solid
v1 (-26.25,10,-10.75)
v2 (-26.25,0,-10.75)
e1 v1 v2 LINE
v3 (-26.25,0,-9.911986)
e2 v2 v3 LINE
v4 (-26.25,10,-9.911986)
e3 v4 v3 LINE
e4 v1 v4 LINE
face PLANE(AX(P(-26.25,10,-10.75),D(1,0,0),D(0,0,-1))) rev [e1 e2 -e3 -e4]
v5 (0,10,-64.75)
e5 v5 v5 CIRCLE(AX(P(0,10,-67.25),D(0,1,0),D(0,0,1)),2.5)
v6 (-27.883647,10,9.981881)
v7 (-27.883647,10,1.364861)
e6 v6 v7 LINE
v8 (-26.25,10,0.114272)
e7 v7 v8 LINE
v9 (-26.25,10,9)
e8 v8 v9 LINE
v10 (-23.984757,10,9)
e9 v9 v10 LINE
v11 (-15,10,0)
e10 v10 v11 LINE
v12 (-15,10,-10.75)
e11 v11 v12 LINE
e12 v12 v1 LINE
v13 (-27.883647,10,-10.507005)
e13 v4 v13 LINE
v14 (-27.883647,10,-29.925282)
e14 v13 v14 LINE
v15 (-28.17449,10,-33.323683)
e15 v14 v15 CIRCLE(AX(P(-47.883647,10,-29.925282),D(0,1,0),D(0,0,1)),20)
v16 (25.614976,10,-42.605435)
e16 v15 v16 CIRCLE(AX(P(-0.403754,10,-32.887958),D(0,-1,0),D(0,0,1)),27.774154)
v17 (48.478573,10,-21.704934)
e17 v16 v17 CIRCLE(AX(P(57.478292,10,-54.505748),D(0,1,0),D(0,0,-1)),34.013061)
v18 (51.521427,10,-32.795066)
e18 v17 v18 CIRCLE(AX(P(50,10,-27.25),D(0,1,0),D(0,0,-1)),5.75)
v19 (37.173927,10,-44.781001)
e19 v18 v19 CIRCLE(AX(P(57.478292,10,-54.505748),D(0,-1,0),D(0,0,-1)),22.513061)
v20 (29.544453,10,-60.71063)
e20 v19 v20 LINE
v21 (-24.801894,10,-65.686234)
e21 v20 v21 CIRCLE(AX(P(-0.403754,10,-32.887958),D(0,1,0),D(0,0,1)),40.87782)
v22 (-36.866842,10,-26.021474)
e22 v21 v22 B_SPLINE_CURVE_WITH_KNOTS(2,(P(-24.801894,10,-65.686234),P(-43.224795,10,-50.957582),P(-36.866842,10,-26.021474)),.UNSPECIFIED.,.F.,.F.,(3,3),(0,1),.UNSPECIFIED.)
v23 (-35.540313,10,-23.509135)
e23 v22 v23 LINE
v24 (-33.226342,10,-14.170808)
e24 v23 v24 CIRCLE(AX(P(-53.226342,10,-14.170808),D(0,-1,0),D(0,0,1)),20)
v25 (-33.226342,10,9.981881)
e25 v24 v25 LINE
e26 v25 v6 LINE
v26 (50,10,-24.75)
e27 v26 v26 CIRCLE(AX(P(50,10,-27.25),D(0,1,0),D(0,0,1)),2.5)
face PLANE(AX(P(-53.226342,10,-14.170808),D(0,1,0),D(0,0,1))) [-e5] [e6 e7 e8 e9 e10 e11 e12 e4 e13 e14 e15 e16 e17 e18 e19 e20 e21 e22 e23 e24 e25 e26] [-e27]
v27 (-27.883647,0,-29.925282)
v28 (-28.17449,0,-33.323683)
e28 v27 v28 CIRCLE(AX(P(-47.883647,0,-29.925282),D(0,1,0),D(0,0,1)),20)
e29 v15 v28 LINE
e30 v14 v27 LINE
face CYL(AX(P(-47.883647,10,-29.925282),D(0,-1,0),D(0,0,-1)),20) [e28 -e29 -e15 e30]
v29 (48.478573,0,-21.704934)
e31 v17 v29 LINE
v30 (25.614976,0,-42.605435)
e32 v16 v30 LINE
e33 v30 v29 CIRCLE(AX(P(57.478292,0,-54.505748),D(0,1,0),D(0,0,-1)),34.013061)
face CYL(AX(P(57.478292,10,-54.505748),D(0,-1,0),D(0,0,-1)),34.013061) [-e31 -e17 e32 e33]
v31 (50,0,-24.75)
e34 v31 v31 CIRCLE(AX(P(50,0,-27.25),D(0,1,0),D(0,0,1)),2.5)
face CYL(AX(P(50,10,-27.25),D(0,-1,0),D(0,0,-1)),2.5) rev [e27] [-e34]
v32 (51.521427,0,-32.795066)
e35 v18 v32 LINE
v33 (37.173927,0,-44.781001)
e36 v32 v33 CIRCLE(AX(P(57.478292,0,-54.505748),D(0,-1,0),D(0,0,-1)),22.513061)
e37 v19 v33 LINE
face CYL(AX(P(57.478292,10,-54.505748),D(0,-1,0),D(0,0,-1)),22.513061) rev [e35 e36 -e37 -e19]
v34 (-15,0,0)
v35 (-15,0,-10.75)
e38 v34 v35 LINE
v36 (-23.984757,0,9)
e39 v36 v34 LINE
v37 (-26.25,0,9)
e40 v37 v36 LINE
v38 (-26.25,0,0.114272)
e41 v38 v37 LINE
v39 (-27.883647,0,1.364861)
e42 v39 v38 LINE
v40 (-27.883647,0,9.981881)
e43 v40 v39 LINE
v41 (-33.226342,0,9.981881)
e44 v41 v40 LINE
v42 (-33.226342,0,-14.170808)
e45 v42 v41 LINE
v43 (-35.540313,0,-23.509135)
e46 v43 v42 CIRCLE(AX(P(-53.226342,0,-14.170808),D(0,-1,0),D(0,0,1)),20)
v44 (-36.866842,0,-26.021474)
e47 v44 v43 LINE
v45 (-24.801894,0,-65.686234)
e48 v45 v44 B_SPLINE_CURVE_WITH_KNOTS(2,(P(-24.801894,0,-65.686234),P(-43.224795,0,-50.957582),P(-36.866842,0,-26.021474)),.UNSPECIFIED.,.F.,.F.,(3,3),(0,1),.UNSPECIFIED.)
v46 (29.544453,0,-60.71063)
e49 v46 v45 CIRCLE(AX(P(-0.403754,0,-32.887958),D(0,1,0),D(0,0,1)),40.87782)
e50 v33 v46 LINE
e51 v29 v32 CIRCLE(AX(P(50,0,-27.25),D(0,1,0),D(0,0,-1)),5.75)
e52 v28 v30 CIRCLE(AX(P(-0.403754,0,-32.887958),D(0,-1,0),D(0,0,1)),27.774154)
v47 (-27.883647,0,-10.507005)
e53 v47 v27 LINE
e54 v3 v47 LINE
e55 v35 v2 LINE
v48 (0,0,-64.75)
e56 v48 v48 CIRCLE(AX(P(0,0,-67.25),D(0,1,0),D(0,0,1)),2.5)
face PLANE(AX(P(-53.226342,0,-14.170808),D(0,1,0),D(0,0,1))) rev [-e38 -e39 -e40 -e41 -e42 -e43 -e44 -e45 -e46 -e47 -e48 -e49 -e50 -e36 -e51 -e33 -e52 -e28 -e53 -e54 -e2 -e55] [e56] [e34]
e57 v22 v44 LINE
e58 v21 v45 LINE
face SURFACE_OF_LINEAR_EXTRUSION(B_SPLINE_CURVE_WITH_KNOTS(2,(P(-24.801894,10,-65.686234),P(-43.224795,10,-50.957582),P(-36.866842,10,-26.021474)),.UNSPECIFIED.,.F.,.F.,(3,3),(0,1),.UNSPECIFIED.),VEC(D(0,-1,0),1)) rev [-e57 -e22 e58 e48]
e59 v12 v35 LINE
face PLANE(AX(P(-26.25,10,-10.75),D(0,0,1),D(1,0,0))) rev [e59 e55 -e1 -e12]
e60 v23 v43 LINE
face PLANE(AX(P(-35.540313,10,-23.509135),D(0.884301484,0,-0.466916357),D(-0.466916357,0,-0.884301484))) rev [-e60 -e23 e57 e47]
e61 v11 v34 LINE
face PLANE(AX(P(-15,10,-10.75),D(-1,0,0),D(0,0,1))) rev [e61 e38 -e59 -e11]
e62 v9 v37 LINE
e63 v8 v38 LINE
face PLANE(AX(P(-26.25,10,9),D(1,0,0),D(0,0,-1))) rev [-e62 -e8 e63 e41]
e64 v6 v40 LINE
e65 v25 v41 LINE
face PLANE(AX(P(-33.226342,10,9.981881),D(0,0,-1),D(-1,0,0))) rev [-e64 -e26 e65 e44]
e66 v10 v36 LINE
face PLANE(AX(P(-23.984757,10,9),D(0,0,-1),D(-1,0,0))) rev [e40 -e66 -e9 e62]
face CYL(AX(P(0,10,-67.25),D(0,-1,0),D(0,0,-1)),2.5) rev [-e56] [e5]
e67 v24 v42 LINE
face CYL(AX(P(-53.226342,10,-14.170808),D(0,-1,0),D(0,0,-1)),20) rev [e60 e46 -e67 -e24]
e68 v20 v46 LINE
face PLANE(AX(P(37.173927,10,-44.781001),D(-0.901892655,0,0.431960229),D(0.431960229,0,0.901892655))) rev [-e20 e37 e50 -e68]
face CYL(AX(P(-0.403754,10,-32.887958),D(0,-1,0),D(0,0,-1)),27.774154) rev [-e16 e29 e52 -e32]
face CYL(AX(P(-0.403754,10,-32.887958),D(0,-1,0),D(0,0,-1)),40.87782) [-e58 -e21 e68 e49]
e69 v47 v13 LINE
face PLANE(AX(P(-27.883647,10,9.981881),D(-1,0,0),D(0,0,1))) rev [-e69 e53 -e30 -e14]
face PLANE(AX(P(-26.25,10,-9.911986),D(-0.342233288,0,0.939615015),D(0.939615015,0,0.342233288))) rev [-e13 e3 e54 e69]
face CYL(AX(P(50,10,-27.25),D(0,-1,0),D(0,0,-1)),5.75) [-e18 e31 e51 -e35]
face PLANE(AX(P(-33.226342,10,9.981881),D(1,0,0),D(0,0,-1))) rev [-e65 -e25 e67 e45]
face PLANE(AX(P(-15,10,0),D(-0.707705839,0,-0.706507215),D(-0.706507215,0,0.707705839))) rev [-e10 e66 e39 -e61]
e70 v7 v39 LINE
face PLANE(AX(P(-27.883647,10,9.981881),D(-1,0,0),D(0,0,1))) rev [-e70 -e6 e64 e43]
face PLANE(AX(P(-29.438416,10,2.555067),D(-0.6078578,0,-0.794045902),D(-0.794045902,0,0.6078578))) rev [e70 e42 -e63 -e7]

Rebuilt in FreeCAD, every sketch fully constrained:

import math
import FreeCAD as App
import Part
import Sketcher

V = App.Vector
Q = App.Units.Quantity

doc = App.newDocument("Part")
params = doc.addObject("Spreadsheet::Sheet", "Params")
for row, (alias, value) in enumerate([
    ("sketch1_diameter", "5 mm"),
    ("sketch1_diameter2", "5 mm"),
    ("sketch1_radius", "20 mm"),
    ("sketch1_radius2", "20 mm"),
    ("sketch1_radius3", "5.75 mm"),
    ("pad1_length", "10 mm"),
    ("sketch2_width", "11.25 mm"),
    ("sketch2_height", "10.75 mm"),
    ("pad2_length", "10 mm"),
], start=1):
    params.set(f"A{row}", alias)
    params.set(f"B{row}", "=" + value)
    params.setAlias(f"B{row}", alias)

body = doc.addObject("PartDesign::Body", "Body")

# Sketch on XZ plane
sketch1 = body.newObject("Sketcher::SketchObject", "Sketch")
sketch1.AttachmentSupport = (doc.getObject("XZ_Plane"), [""])
sketch1.MapMode = "FlatFace"
sketch1.addGeometry([
    Part.LineSegment(V(-33.226342, 9.981881, 0), V(-27.883647, 9.981881, 0)),  # 0
    Part.LineSegment(V(-27.883647, 9.981881, 0), V(-27.883647, -29.925282, 0)),  # 1
    Part.ArcOfCircle(Part.Circle(V(-47.883647, -29.925282, 0), V(0, 0, 1), 20), math.radians(-9.78317), math.radians(0)),  # 2
    Part.ArcOfCircle(Part.Circle(V(-0.403754, -32.887958, 0), V(0, 0, 1), 27.774154), math.radians(-179.1011), math.radians(-20.479657)),  # 3
    Part.ArcOfCircle(Part.Circle(V(57.478292, -54.505748, 0), V(0, 0, 1), 34.013061), math.radians(105.342946), math.radians(159.520343)),  # 4
    Part.ArcOfCircle(Part.Circle(V(50, -27.25, 0), V(0, 0, 1), 5.75), math.radians(-74.657054), math.radians(105.342946)),  # 5
    Part.ArcOfCircle(Part.Circle(V(57.478292, -54.505748, 0), V(0, 0, 1), 22.513061), math.radians(105.342946), math.radians(154.407974)),  # 6
    Part.LineSegment(V(37.173927, -44.781001, 0), V(29.544453, -60.71063, 0)),  # 7
    Part.ArcOfCircle(Part.Circle(V(-0.403754, -32.887958, 0), V(0, 0, 1), 40.87782), math.radians(-126.645), math.radians(-42.892895)),  # 8
    Part.BSplineCurve([V(-36.866842, -26.021474, 0), V(-43.224795, -50.957582, 0), V(-24.801894, -65.686234, 0)], [3, 3], [0, 1], False, 2, [1, 1, 1], False),  # 9
    Part.LineSegment(V(-36.866842, -26.021474, 0), V(-35.540313, -23.509135, 0)),  # 10
    Part.ArcOfCircle(Part.Circle(V(-53.226342, -14.170808, 0), V(0, 0, 1), 20), math.radians(-27.834316), math.radians(0)),  # 11
    Part.LineSegment(V(-33.226342, -14.170808, 0), V(-33.226342, 9.981881, 0)),  # 12
    Part.Circle(V(50, -27.25, 0), V(0, 0, 1), 2.5),  # 13
    Part.Circle(V(0, -67.25, 0), V(0, 0, 1), 2.5),  # 14
], False)
sketch1.addConstraint([
    Sketcher.Constraint("Block", 9),
    Sketcher.Constraint("Coincident", 0, 2, 1, 1),
    Sketcher.Constraint("Coincident", 1, 2, 2, 2),
    Sketcher.Constraint("Coincident", 2, 1, 3, 1),
    Sketcher.Constraint("Coincident", 3, 2, 4, 2),
    Sketcher.Constraint("Coincident", 4, 1, 5, 2),
    Sketcher.Constraint("Coincident", 5, 1, 6, 1),
    Sketcher.Constraint("Coincident", 6, 2, 7, 1),
    Sketcher.Constraint("Coincident", 7, 2, 8, 2),
    Sketcher.Constraint("Coincident", 8, 1, 9, 2),
    Sketcher.Constraint("Coincident", 9, 1, 10, 1),
    Sketcher.Constraint("Coincident", 10, 2, 11, 1),
    Sketcher.Constraint("Coincident", 11, 2, 12, 1),
    Sketcher.Constraint("Coincident", 12, 2, 0, 1),
    Sketcher.Constraint("Horizontal", 0),
    Sketcher.Constraint("Vertical", 1),
    Sketcher.Constraint("Vertical", 12),
    Sketcher.Constraint("Coincident", 6, 3, 4, 3),
    Sketcher.Constraint("Coincident", 8, 3, 3, 3),
    Sketcher.Constraint("Coincident", 13, 3, 5, 3),
    Sketcher.Constraint("PointOnObject", 14, 3, -2),
    Sketcher.Constraint("Diameter", 13, Q("5 mm")),
    Sketcher.Constraint("Diameter", 14, Q("5 mm")),
    Sketcher.Constraint("Radius", 2, Q("20 mm")),
    Sketcher.Constraint("Radius", 11, Q("20 mm")),
    Sketcher.Constraint("Radius", 5, Q("5.75 mm")),
    Sketcher.Constraint("DistanceX", -1, 1, 5, 3, Q("50 mm")),
    Sketcher.Constraint("DistanceY", 5, 3, -1, 1, Q("27.25 mm")),
    Sketcher.Constraint("DistanceY", 14, 3, -1, 1, Q("67.25 mm")),
    Sketcher.Constraint("Radius", 4, Q("34.013061 mm")),
    Sketcher.Constraint("Radius", 8, Q("40.87782 mm")),
    Sketcher.Constraint("DistanceY", 6, 2, -1, 1, Q("44.781001 mm")),
    Sketcher.Constraint("Radius", 3, Q("27.774154 mm")),
    Sketcher.Constraint("DistanceY", 12, 1, 12, 2, Q("24.152688 mm")),
    Sketcher.Constraint("DistanceY", 2, 1, 1, 2, Q("3.398401 mm")),
    Sketcher.Constraint("DistanceY", 2, 1, 2, 3, Q("3.398401 mm")),
    Sketcher.Constraint("DistanceY", 3, 2, 4, 1, Q("20.900501 mm")),
    Sketcher.Constraint("DistanceX", 6, 2, 5, 1, Q("14.3475 mm")),
    Sketcher.Constraint("DistanceX", 0, 1, 0, 2, Q("5.342695 mm")),
    Sketcher.Constraint("DistanceY", 1, 2, 1, 1, Q("39.907162 mm")),
    Sketcher.Constraint("DistanceY", 2, 3, -1, 1, Q("29.925282 mm")),
    Sketcher.Constraint("DistanceY", 3, 3, -1, 1, Q("32.887958 mm")),
    Sketcher.Constraint("DistanceY", 7, 2, -1, 1, Q("60.71063 mm")),
    Sketcher.Constraint("DistanceY", 8, 3, 11, 3, Q("18.71715 mm")),
    Sketcher.Constraint("DistanceX", 3, 3, 3, 2, Q("26.01873 mm")),
    Sketcher.Constraint("DistanceX", 11, 3, 10, 2, Q("17.68603 mm")),
])
sketch1.setExpression("Constraints[21]", "Params.sketch1_diameter")
sketch1.setExpression("Constraints[22]", "Params.sketch1_diameter2")
sketch1.setExpression("Constraints[23]", "Params.sketch1_radius")
sketch1.setExpression("Constraints[24]", "Params.sketch1_radius2")
sketch1.setExpression("Constraints[25]", "Params.sketch1_radius3")
pad1 = body.newObject("PartDesign::Pad", "Pad")
pad1.Profile = sketch1
pad1.setExpression("Length", "Params.pad1_length")
pad1.Reversed = True

# Sketch on XZ plane
sketch2 = body.newObject("Sketcher::SketchObject", "Sketch001")
sketch2.AttachmentSupport = (doc.getObject("XZ_Plane"), [""])
sketch2.MapMode = "FlatFace"
sketch2.addGeometry([
    Part.LineSegment(V(-15, -10.75, 0), V(-26.25, -10.75, 0)),  # 0
    Part.LineSegment(V(-26.25, -10.75, 0), V(-26.25, -9.911986, 0)),  # 1
    Part.LineSegment(V(-26.25, -9.911986, 0), V(-29.438416, -11.073293, 0)),  # 2
    Part.LineSegment(V(-29.438416, -11.073293, 0), V(-29.438416, 2.555067, 0)),  # 3
    Part.LineSegment(V(-29.438416, 2.555067, 0), V(-26.25, 0.114272, 0)),  # 4
    Part.LineSegment(V(-26.25, 0.114272, 0), V(-26.25, 9, 0)),  # 5
    Part.LineSegment(V(-26.25, 9, 0), V(-23.984757, 9, 0)),  # 6
    Part.LineSegment(V(-23.984757, 9, 0), V(-15, 0, 0)),  # 7
    Part.LineSegment(V(-15, 0, 0), V(-15, -10.75, 0)),  # 8
], False)
sketch2.addConstraint([
    Sketcher.Constraint("Coincident", 0, 2, 1, 1),
    Sketcher.Constraint("Coincident", 1, 2, 2, 1),
    Sketcher.Constraint("Coincident", 2, 2, 3, 1),
    Sketcher.Constraint("Coincident", 3, 2, 4, 1),
    Sketcher.Constraint("Coincident", 4, 2, 5, 1),
    Sketcher.Constraint("Coincident", 5, 2, 6, 1),
    Sketcher.Constraint("Coincident", 6, 2, 7, 1),
    Sketcher.Constraint("Coincident", 7, 2, 8, 1),
    Sketcher.Constraint("Coincident", 8, 2, 0, 1),
    Sketcher.Constraint("Horizontal", 0),
    Sketcher.Constraint("Vertical", 1),
    Sketcher.Constraint("Vertical", 3),
    Sketcher.Constraint("Vertical", 5),
    Sketcher.Constraint("Horizontal", 6),
    Sketcher.Constraint("Vertical", 8),
    Sketcher.Constraint("PointOnObject", 7, 2, -1),
    Sketcher.Constraint("Vertical", 1, 2, 4, 2),
    Sketcher.Constraint("DistanceY", -1, 1, 5, 2, Q("9 mm")),
    Sketcher.Constraint("DistanceX", 7, 2, -1, 1, Q("15 mm")),
    Sketcher.Constraint("DistanceX", 0, 2, 0, 1, Q("11.25 mm")),
    Sketcher.Constraint("DistanceY", 8, 2, 8, 1, Q("10.75 mm")),
    Sketcher.Constraint("DistanceY", 3, 1, 3, 2, Q("13.628361 mm")),
    Sketcher.Constraint("Distance", 2, Q("3.393321 mm")),
    Sketcher.Constraint("Distance", 7, Q("12.717148 mm")),
    Sketcher.Constraint("DistanceY", 1, 1, 1, 2, Q("0.838014 mm")),
    Sketcher.Constraint("DistanceY", 5, 1, 5, 2, Q("8.885728 mm")),
    Sketcher.Constraint("DistanceX", 3, 2, 6, 2, Q("5.453659 mm")),
])
sketch2.setExpression("Constraints[19]", "Params.sketch2_width")
sketch2.setExpression("Constraints[20]", "Params.sketch2_height")
pad2 = body.newObject("PartDesign::Pad", "Pad001")
pad2.Profile = sketch2
pad2.setExpression("Length", "Params.pad2_length")
pad2.Reversed = True

doc.recompute()
